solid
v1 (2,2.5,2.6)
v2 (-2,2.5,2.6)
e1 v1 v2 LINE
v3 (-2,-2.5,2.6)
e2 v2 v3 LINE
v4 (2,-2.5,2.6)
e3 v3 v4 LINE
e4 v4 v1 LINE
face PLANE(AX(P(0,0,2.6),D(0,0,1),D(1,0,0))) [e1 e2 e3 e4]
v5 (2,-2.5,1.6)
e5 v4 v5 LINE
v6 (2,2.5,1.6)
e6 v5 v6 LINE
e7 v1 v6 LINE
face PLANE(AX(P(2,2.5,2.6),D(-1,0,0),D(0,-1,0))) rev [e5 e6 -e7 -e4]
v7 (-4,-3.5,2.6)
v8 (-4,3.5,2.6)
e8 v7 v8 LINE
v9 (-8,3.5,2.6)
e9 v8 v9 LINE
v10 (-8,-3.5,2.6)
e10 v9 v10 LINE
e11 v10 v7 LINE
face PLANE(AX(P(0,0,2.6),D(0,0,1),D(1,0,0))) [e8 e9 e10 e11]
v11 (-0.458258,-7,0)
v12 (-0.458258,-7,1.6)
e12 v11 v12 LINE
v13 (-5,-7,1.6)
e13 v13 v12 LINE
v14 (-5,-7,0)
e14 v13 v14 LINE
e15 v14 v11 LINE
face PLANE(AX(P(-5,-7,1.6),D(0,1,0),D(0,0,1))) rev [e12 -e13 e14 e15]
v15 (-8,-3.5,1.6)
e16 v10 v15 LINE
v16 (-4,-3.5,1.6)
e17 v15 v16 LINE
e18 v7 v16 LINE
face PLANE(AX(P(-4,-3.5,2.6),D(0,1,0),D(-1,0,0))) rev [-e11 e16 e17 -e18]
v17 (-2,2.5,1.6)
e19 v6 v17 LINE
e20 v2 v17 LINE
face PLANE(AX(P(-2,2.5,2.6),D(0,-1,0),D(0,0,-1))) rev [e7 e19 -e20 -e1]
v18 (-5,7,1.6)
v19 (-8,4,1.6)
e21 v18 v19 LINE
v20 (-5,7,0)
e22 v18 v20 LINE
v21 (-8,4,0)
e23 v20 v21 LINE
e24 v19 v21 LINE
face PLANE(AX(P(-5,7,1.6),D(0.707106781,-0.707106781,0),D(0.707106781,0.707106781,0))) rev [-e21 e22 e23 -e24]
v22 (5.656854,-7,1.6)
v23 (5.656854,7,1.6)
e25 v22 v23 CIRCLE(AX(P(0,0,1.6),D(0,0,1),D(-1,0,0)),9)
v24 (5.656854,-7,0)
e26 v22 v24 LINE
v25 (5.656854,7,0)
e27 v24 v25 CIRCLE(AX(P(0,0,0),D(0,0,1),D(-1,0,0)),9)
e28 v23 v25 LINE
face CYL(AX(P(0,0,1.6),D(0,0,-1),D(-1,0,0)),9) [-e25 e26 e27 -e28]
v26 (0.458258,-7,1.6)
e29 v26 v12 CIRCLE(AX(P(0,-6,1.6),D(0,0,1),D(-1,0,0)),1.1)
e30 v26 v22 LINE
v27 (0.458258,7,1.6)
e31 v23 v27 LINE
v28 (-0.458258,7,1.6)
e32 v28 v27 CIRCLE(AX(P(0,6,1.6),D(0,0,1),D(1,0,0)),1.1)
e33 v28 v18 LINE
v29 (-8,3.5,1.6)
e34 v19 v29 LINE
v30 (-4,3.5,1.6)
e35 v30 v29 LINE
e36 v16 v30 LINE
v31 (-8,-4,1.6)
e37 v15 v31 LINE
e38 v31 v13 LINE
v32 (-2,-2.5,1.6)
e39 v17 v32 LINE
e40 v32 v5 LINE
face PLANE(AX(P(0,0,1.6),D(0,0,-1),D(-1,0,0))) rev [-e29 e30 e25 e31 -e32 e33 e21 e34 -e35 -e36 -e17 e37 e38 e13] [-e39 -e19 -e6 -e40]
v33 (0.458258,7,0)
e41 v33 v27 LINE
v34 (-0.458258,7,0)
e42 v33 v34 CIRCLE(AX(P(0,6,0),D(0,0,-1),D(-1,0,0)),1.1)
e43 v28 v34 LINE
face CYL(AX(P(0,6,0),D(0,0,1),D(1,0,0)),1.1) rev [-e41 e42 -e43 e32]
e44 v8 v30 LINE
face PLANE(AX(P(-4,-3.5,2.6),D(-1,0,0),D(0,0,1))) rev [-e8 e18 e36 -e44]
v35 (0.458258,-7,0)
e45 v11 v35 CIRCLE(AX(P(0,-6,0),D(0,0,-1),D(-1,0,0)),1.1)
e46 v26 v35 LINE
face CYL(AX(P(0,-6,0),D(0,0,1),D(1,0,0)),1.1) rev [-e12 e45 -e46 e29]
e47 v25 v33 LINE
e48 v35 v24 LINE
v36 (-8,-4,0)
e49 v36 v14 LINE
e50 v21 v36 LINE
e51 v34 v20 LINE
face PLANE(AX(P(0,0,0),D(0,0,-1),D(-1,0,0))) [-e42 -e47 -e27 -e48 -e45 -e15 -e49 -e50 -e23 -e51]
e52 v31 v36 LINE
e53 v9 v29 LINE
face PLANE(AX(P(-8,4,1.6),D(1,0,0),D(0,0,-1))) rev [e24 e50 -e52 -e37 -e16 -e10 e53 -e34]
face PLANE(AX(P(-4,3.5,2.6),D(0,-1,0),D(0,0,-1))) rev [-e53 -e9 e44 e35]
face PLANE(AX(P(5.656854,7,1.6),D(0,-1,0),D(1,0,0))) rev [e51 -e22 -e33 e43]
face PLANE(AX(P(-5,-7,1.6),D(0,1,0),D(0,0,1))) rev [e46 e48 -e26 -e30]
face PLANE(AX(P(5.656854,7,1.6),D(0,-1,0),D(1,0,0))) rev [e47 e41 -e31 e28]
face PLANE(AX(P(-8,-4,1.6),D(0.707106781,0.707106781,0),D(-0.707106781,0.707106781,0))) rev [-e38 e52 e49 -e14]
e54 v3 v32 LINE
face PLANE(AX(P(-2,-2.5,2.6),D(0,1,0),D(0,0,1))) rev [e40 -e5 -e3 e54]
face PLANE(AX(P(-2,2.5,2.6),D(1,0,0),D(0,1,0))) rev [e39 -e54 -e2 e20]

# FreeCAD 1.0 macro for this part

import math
import FreeCAD as App
import Part
import Sketcher
Q = App.Units.Quantity

doc = App.newDocument("Part")
body = doc.addObject("PartDesign::Body", "Body")

sketch1 = doc.addObject("Sketcher::SketchObject", "Sketch")
body.addObject(sketch1)
sketch1.AttachmentSupport = (doc.XY_Plane, [""])
sketch1.MapMode = "FlatFace"
sketch1.addGeometry([
    Part.LineSegment(App.Vector(5.7, 7, 0), App.Vector(-5, 7, 0)),
    Part.LineSegment(App.Vector(-5, 7, 0), App.Vector(-8, 4, 0)),
    Part.LineSegment(App.Vector(-8, 4, 0), App.Vector(-8, -4, 0)),
    Part.LineSegment(App.Vector(-8, -4, 0), App.Vector(-5, -7, 0)),
    Part.LineSegment(App.Vector(-5, -7, 0), App.Vector(5.7, -7, 0)),
    Part.ArcOfCircle(Part.Circle(App.Vector(0, 0, 0), App.Vector(0, 0, 1), 9), math.radians(-51), math.radians(51)),
], False)
sketch1.addConstraint([
    Sketcher.Constraint("Coincident", 0, 2, 1, 1),
    Sketcher.Constraint("Coincident", 1, 2, 2, 1),
    Sketcher.Constraint("Coincident", 2, 2, 3, 1),
    Sketcher.Constraint("Coincident", 3, 2, 4, 1),
    Sketcher.Constraint("Coincident", 4, 2, 5, 1),
    Sketcher.Constraint("Coincident", 5, 2, 0, 1),
    Sketcher.Constraint("Horizontal", 0),
    Sketcher.Constraint("Vertical", 2),
    Sketcher.Constraint("Horizontal", 4),
    Sketcher.Constraint("Coincident", 5, 3, -1, 1),
    Sketcher.Constraint("Symmetric", 0, 2, 3, 2, -1),
    Sketcher.Constraint("Perpendicular", 1, 3),
    Sketcher.Constraint("Equal", 1, 3),
    Sketcher.Constraint("Radius", 5, Q("9 mm")),
    Sketcher.Constraint("DistanceY", 2, 2, 2, 1, Q("8 mm")),
    Sketcher.Constraint("DistanceX", 0, 2, -1, 1, Q("5 mm")),
    Sketcher.Constraint("DistanceY", -1, 1, 0, 2, Q("7 mm")),
])
pad1 = doc.addObject("PartDesign::Pad", "Pad")
body.addObject(pad1)
pad1.Profile = sketch1
pad1.Length = 1.6

sketch2 = doc.addObject("Sketcher::SketchObject", "Sketch001")
body.addObject(sketch2)
sketch2.AttachmentSupport = (doc.XY_Plane, [""])
sketch2.MapMode = "FlatFace"
sketch2.AttachmentOffset = App.Placement(App.Vector(0, 0, 1.6), App.Rotation())
sketch2.addGeometry([
    Part.Circle(App.Vector(0, 6, 0), App.Vector(0, 0, 1), 1.1),
    Part.Circle(App.Vector(0, -6, 0), App.Vector(0, 0, 1), 1.1),
], False)
sketch2.addConstraint([
    Sketcher.Constraint("Equal", 0, 1),
    Sketcher.Constraint("Symmetric", 0, 3, 1, 3, -1, 1),
    Sketcher.Constraint("PointOnObject", 0, 3, -2),
    Sketcher.Constraint("Diameter", 0, Q("2.2 mm")),
    Sketcher.Constraint("DistanceY", -1, 1, 0, 3, Q("6 mm")),
])
pocket1 = doc.addObject("PartDesign::Pocket", "Pocket")
body.addObject(pocket1)
pocket1.Profile = sketch2
pocket1.Type = "ThroughAll"

sketch3 = doc.addObject("Sketcher::SketchObject", "Sketch002")
body.addObject(sketch3)
sketch3.AttachmentSupport = (doc.XY_Plane, [""])
sketch3.MapMode = "FlatFace"
sketch3.AttachmentOffset = App.Placement(App.Vector(0, 0, 1.6), App.Rotation())
sketch3.addGeometry([
    Part.LineSegment(App.Vector(-2, 2.5, 0), App.Vector(-2, -2.5, 0)),
    Part.LineSegment(App.Vector(-2, -2.5, 0), App.Vector(2, -2.5, 0)),
    Part.LineSegment(App.Vector(2, -2.5, 0), App.Vector(2, 2.5, 0)),
    Part.LineSegment(App.Vector(2, 2.5, 0), App.Vector(-2, 2.5, 0)),
    Part.LineSegment(App.Vector(-8, 3.5, 0), App.Vector(-8, -3.5, 0)),
    Part.LineSegment(App.Vector(-8, -3.5, 0), App.Vector(-4, -3.5, 0)),
    Part.LineSegment(App.Vector(-4, -3.5, 0), App.Vector(-4, 3.5, 0)),
    Part.LineSegment(App.Vector(-4, 3.5, 0), App.Vector(-8, 3.5, 0)),
], False)
sketch3.addConstraint([
    Sketcher.Constraint("Coincident", 0, 2, 1, 1),
    Sketcher.Constraint("Coincident", 1, 2, 2, 1),
    Sketcher.Constraint("Coincident", 2, 2, 3, 1),
    Sketcher.Constraint("Coincident", 3, 2, 0, 1),
    Sketcher.Constraint("Coincident", 4, 2, 5, 1),
    Sketcher.Constraint("Coincident", 5, 2, 6, 1),
    Sketcher.Constraint("Coincident", 6, 2, 7, 1),
    Sketcher.Constraint("Coincident", 7, 2, 4, 1),
    Sketcher.Constraint("Vertical", 0),
    Sketcher.Constraint("Horizontal", 1),
    Sketcher.Constraint("Vertical", 2),
    Sketcher.Constraint("Horizontal", 3),
    Sketcher.Constraint("Vertical", 4),
    Sketcher.Constraint("Horizontal", 5),
    Sketcher.Constraint("Vertical", 6),
    Sketcher.Constraint("Horizontal", 7),
    Sketcher.Constraint("Symmetric", 0, 2, 2, 2, -1, 1),
    Sketcher.Constraint("Equal", 3, 5),
    Sketcher.Constraint("DistanceX", 1, 1, 1, 2, Q("4 mm")),
    Sketcher.Constraint("DistanceY", 0, 2, 0, 1, Q("5 mm")),
    Sketcher.Constraint("DistanceY", 4, 2, 4, 1, Q("7 mm")),
    Sketcher.Constraint("DistanceX", 4, 2, -1, 1, Q("8 mm")),
    Sketcher.Constraint("DistanceY", 4, 2, 0, 2, Q("1 mm")),
])
pad2 = doc.addObject("PartDesign::Pad", "Pad001")
body.addObject(pad2)
pad2.Profile = sketch3
pad2.Length = 1

doc.recompute()
